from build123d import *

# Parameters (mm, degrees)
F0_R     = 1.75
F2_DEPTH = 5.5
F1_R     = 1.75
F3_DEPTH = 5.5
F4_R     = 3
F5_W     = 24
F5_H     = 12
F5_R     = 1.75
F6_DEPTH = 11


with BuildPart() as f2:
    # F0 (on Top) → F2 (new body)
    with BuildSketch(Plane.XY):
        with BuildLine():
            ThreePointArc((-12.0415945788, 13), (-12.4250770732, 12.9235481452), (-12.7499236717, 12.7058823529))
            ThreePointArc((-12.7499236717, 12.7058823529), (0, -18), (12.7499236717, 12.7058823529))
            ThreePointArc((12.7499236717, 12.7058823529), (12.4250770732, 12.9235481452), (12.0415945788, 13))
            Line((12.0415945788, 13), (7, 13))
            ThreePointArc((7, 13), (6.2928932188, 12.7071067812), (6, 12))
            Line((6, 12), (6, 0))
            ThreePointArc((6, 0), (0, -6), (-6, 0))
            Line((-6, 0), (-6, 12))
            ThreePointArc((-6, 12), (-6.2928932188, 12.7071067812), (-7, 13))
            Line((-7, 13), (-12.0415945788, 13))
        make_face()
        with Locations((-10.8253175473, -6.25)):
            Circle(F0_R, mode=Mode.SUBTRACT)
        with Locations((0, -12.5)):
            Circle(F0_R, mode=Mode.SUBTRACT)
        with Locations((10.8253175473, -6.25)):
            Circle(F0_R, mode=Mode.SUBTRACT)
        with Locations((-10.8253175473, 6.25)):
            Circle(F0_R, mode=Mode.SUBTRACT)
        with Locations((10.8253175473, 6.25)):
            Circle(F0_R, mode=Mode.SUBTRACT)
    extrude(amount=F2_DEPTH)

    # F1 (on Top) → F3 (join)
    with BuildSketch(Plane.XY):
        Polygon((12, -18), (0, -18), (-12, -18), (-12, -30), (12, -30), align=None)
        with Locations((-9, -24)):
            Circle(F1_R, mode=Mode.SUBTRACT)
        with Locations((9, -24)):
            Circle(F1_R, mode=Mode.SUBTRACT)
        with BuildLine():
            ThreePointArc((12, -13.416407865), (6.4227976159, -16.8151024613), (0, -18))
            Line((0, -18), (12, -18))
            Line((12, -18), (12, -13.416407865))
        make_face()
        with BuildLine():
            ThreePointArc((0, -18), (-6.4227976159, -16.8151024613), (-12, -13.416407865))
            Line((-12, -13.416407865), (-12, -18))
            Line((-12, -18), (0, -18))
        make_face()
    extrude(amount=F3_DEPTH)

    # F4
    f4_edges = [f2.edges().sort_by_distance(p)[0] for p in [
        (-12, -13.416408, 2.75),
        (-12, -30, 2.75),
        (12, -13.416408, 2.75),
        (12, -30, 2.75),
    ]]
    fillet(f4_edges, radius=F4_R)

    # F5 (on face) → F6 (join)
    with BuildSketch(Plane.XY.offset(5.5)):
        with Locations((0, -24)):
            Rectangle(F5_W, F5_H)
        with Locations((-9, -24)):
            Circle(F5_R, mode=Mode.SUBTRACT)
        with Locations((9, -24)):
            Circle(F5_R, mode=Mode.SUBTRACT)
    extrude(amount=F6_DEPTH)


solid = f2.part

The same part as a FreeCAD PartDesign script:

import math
import FreeCAD as App
import Part
import Sketcher

V = App.Vector


def edges_at(feature, points):
    """Names of the edges that pass closest to the given points."""
    edges = feature.Shape.Edges
    near = lambda p: min(range(len(edges)), key=lambda i: edges[i].distToShape(Part.Vertex(*p))[0])
    return sorted({f"Edge{near(p) + 1}" for p in points})

doc = App.newDocument("Part")
params = doc.addObject("Spreadsheet::Sheet", "Params")
for row, (alias, value) in enumerate([
    ("sketch1_radius", "1 mm"),
    ("sketch1_radius2", "18 mm"),
    ("sketch1_radius3", "6 mm"),
    ("sketch1_diameter", "3.5 mm"),
    ("sketch1_height", "12 mm"),
    ("pad1_length", "5.5 mm"),
    ("sketch2_radius", "18 mm"),
    ("sketch2_diameter", "3.5 mm"),
    ("sketch2_width", "24 mm"),
    ("pad2_length", "5.5 mm"),
    ("fillet_radius", "3 mm"),
    ("sketch3_diameter", "3.5 mm"),
    ("sketch3_width", "24 mm"),
    ("sketch3_height", "12 mm"),
    ("pad3_length", "11 mm"),
], start=1):
    params.set(f"A{row}", alias)
    params.set(f"B{row}", "=" + value)
    params.setAlias(f"B{row}", alias)

body = doc.addObject("PartDesign::Body", "Body")

# Sketch on XY plane
sketch1 = doc.addObject("Sketcher::SketchObject", "Sketch")
body.addObject(sketch1)
sketch1.AttachmentSupport = (doc.XY_Plane, [""])
sketch1.MapMode = "FlatFace"
sketch1.addGeometry(Part.ArcOfCircle(Part.Circle(V(-12.041595, 12, 0), V(0, 0, 1), 1), math.radians(90), math.radians(135.099128)), False)
sketch1.addGeometry(Part.ArcOfCircle(Part.Circle(V(0, 0, 0), V(0, 0, 1), 18), math.radians(135.099128), math.radians(404.900872)), False)
sketch1.addGeometry(Part.ArcOfCircle(Part.Circle(V(12.041595, 12, 0), V(0, 0, 1), 1), math.radians(44.900872), math.radians(90)), False)
sketch1.addGeometry(Part.LineSegment(V(12.041595, 13, 0), V(7, 13, 0)), False)
sketch1.addGeometry(Part.ArcOfCircle(Part.Circle(V(7, 12, 0), V(0, 0, 1), 1), math.radians(90), math.radians(180)), False)
sketch1.addGeometry(Part.LineSegment(V(6, 12, 0), V(6, 0, 0)), False)
sketch1.addGeometry(Part.ArcOfCircle(Part.Circle(V(0, 0, 0), V(0, 0, 1), 6), math.radians(180), math.radians(360)), False)
sketch1.addGeometry(Part.LineSegment(V(-6, 0, 0), V(-6, 12, 0)), False)
sketch1.addGeometry(Part.ArcOfCircle(Part.Circle(V(-7, 12, 0), V(0, 0, 1), 1), math.radians(0), math.radians(90)), False)
sketch1.addGeometry(Part.LineSegment(V(-7, 13, 0), V(-12.041595, 13, 0)), False)
sketch1.addGeometry(Part.Circle(V(-10.825318, -6.25, 0), V(0, 0, 1), 1.75), False)
sketch1.addGeometry(Part.Circle(V(0, -12.5, 0), V(0, 0, 1), 1.75), False)
sketch1.addGeometry(Part.Circle(V(10.825318, -6.25, 0), V(0, 0, 1), 1.75), False)
sketch1.addGeometry(Part.Circle(V(-10.825318, 6.25, 0), V(0, 0, 1), 1.75), False)
sketch1.addGeometry(Part.Circle(V(10.825318, 6.25, 0), V(0, 0, 1), 1.75), False)
sketch1.addConstraint(Sketcher.Constraint("Tangent", 0, 2, 1, 1))
sketch1.addConstraint(Sketcher.Constraint("Tangent", 1, 2, 2, 1))
sketch1.addConstraint(Sketcher.Constraint("Tangent", 2, 2, 3, 1))
sketch1.addConstraint(Sketcher.Constraint("Tangent", 3, 2, 4, 1))
sketch1.addConstraint(Sketcher.Constraint("Tangent", 4, 2, 5, 1))
sketch1.addConstraint(Sketcher.Constraint("Tangent", 5, 2, 6, 2))
sketch1.addConstraint(Sketcher.Constraint("Tangent", 6, 1, 7, 1))
sketch1.addConstraint(Sketcher.Constraint("Tangent", 7, 2, 8, 1))
sketch1.addConstraint(Sketcher.Constraint("Tangent", 8, 2, 9, 1))
sketch1.addConstraint(Sketcher.Constraint("Tangent", 9, 2, 0, 1))
sketch1.addConstraint(Sketcher.Constraint("Horizontal", 3))
sketch1.addConstraint(Sketcher.Constraint("Vertical", 5))
sketch1.addConstraint(Sketcher.Constraint("Vertical", 7))
sketch1.addConstraint(Sketcher.Constraint("Horizontal", 9))
sketch1.addConstraint(Sketcher.Constraint("Coincident", 1, 3, -1, 1))
sketch1.addConstraint(Sketcher.Constraint("Coincident", 6, 3, -1, 1))
sketch1.addConstraint(Sketcher.Constraint("Equal", 0, 2))
sketch1.addConstraint(Sketcher.Constraint("Equal", 2, 4))
sketch1.addConstraint(Sketcher.Constraint("Equal", 4, 8))
sketch1.addConstraint(Sketcher.Constraint("Equal", 10, 11))
sketch1.addConstraint(Sketcher.Constraint("Equal", 11, 12))
sketch1.addConstraint(Sketcher.Constraint("Equal", 12, 13))
sketch1.addConstraint(Sketcher.Constraint("Equal", 13, 14))
sketch1.addConstraint(Sketcher.Constraint("Symmetric", 12, 3, 13, 3, -1, 1))
sketch1.addConstraint(Sketcher.Constraint("Symmetric", 10, 3, 14, 3, -1, 1))
sketch1.addConstraint(Sketcher.Constraint("Symmetric", 10, 3, 12, 3, -2))
sketch1.addConstraint(Sketcher.Constraint("PointOnObject", 11, 3, -2))
sketch1.addConstraint(Sketcher.Constraint("Horizontal", 0, 3, 2, 3))
sketch1.addConstraint(Sketcher.Constraint("Radius", 0, 1.0))
sketch1.addConstraint(Sketcher.Constraint("Radius", 1, 18.0))
sketch1.addConstraint(Sketcher.Constraint("Radius", 6, 6.0))
sketch1.addConstraint(Sketcher.Constraint("Diameter", 10, 3.5))
sketch1.addConstraint(Sketcher.Constraint("DistanceY", 5, 2, 5, 1, 12.0))
sketch1.addConstraint(Sketcher.Constraint("DistanceY", 11, 3, -1, 1, 12.5))
sketch1.addConstraint(Sketcher.Constraint("DistanceY", 10, 3, 13, 3, 12.5))
sketch1.addConstraint(Sketcher.Constraint("DistanceX", 10, 3, -1, 1, 10.825318))
sketch1.setExpression("Constraints[28]", "Params.sketch1_radius")
sketch1.setExpression("Constraints[29]", "Params.sketch1_radius2")
sketch1.setExpression("Constraints[30]", "Params.sketch1_radius3")
sketch1.setExpression("Constraints[31]", "Params.sketch1_diameter")
sketch1.setExpression("Constraints[32]", "Params.sketch1_height")
pad1 = doc.addObject("PartDesign::Pad", "Pad")
body.addObject(pad1)
pad1.Profile = sketch1
pad1.setExpression("Length", "Params.pad1_length")

# Sketch on XY plane
sketch2 = doc.addObject("Sketcher::SketchObject", "Sketch001")
body.addObject(sketch2)
sketch2.AttachmentSupport = (doc.XY_Plane, [""])
sketch2.MapMode = "FlatFace"
sketch2.addGeometry(Part.LineSegment(V(-12, -30, 0), V(12, -30, 0)), False)
sketch2.addGeometry(Part.LineSegment(V(12, -30, 0), V(12, -13.416408, 0)), False)
sketch2.addGeometry(Part.ArcOfCircle(Part.Circle(V(0, 0, 0), V(0, 0, 1), 18), math.radians(-90), math.radians(-48.189685)), False)
sketch2.addGeometry(Part.ArcOfCircle(Part.Circle(V(0, 0, 0), V(0, 0, 1), 18), math.radians(-131.810315), math.radians(-90)), False)
sketch2.addGeometry(Part.LineSegment(V(-12, -13.416408, 0), V(-12, -30, 0)), False)
sketch2.addGeometry(Part.Circle(V(-9, -24, 0), V(0, 0, 1), 1.75), False)
sketch2.addGeometry(Part.Circle(V(9, -24, 0), V(0, 0, 1), 1.75), False)
sketch2.addConstraint(Sketcher.Constraint("Coincident", 0, 2, 1, 1))
sketch2.addConstraint(Sketcher.Constraint("Coincident", 1, 2, 2, 2))
sketch2.addConstraint(Sketcher.Constraint("Tangent", 2, 1, 3, 2))
sketch2.addConstraint(Sketcher.Constraint("Coincident", 3, 1, 4, 1))
sketch2.addConstraint(Sketcher.Constraint("Coincident", 4, 2, 0, 1))
sketch2.addConstraint(Sketcher.Constraint("Horizontal", 0))
sketch2.addConstraint(Sketcher.Constraint("Vertical", 1))
sketch2.addConstraint(Sketcher.Constraint("Vertical", 4))
sketch2.addConstraint(Sketcher.Constraint("Coincident", 2, 3, -1, 1))
sketch2.addConstraint(Sketcher.Constraint("Equal", 2, 3))
sketch2.addConstraint(Sketcher.Constraint("Equal", 5, 6))
sketch2.addConstraint(Sketcher.Constraint("Symmetric", 5, 3, 6, 3, -2))
sketch2.addConstraint(Sketcher.Constraint("PointOnObject", 2, 1, -2))
sketch2.addConstraint(Sketcher.Constraint("Horizontal", 1, 2, 3, 1))
sketch2.addConstraint(Sketcher.Constraint("Radius", 2, 18.0))
sketch2.addConstraint(Sketcher.Constraint("Diameter", 5, 3.5))
sketch2.addConstraint(Sketcher.Constraint("DistanceX", 0, 1, 0, 2, 24.0))
sketch2.addConstraint(Sketcher.Constraint("DistanceX", 5, 3, -1, 1, 9.0))
sketch2.addConstraint(Sketcher.Constraint("DistanceY", 5, 3, -1, 1, 24.0))
sketch2.addConstraint(Sketcher.Constraint("DistanceY", 0, 2, -1, 1, 30.0))
sketch2.setExpression("Constraints[14]", "Params.sketch2_radius")
sketch2.setExpression("Constraints[15]", "Params.sketch2_diameter")
sketch2.setExpression("Constraints[16]", "Params.sketch2_width")
pad2 = doc.addObject("PartDesign::Pad", "Pad001")
body.addObject(pad2)
pad2.Profile = sketch2
pad2.setExpression("Length", "Params.pad2_length")
doc.recompute()

fillet = doc.addObject("PartDesign::Fillet", "Fillet")
body.addObject(fillet)
fillet.Base = (pad2, edges_at(pad2, [
    (-12, -13.416, 2.75),
    (-12, -30, 2.75),
    (12, -13.416, 2.75),
    (12, -30, 2.75),
]))
fillet.setExpression("Radius", "Params.fillet_radius")

# Sketch on XY plane
sketch3 = doc.addObject("Sketcher::SketchObject", "Sketch002")
body.addObject(sketch3)
sketch3.AttachmentSupport = (doc.XY_Plane, [""])
sketch3.MapMode = "FlatFace"
sketch3.AttachmentOffset = App.Placement(V(0, 0, 5.5), App.Rotation())
sketch3.addGeometry(Part.LineSegment(V(-12, -18, 0), V(-12, -30, 0)), False)
sketch3.addGeometry(Part.LineSegment(V(-12, -30, 0), V(12, -30, 0)), False)
sketch3.addGeometry(Part.LineSegment(V(12, -30, 0), V(12, -18, 0)), False)
sketch3.addGeometry(Part.LineSegment(V(12, -18, 0), V(-12, -18, 0)), False)
sketch3.addGeometry(Part.Circle(V(-9, -24, 0), V(0, 0, 1), 1.75), False)
sketch3.addGeometry(Part.Circle(V(9, -24, 0), V(0, 0, 1), 1.75), False)
sketch3.addConstraint(Sketcher.Constraint("Coincident", 0, 2, 1, 1))
sketch3.addConstraint(Sketcher.Constraint("Coincident", 1, 2, 2, 1))
sketch3.addConstraint(Sketcher.Constraint("Coincident", 2, 2, 3, 1))
sketch3.addConstraint(Sketcher.Constraint("Coincident", 3, 2, 0, 1))
sketch3.addConstraint(Sketcher.Constraint("Vertical", 0))
sketch3.addConstraint(Sketcher.Constraint("Horizontal", 1))
sketch3.addConstraint(Sketcher.Constraint("Vertical", 2))
sketch3.addConstraint(Sketcher.Constraint("Horizontal", 3))
sketch3.addConstraint(Sketcher.Constraint("Equal", 4, 5))
sketch3.addConstraint(Sketcher.Constraint("Symmetric", 4, 3, 5, 3, -2))
sketch3.addConstraint(Sketcher.Constraint("Diameter", 4, 3.5))
sketch3.addConstraint(Sketcher.Constraint("DistanceX", 1, 1, 1, 2, 24.0))
sketch3.addConstraint(Sketcher.Constraint("DistanceY", 0, 2, 0, 1, 12.0))
sketch3.addConstraint(Sketcher.Constraint("DistanceX", 4, 3, -1, 1, 9.0))
sketch3.addConstraint(Sketcher.Constraint("DistanceY", 4, 3, -1, 1, 24.0))
sketch3.addConstraint(Sketcher.Constraint("DistanceX", 0, 2, -1, 1, 12.0))
sketch3.addConstraint(Sketcher.Constraint("DistanceY", 0, 2, -1, 1, 30.0))
sketch3.setExpression("Constraints[10]", "Params.sketch3_diameter")
sketch3.setExpression("Constraints[11]", "Params.sketch3_width")
sketch3.setExpression("Constraints[12]", "Params.sketch3_height")
pad3 = doc.addObject("PartDesign::Pad", "Pad002")
body.addObject(pad3)
pad3.Profile = sketch3
pad3.setExpression("Length", "Params.pad3_length")

doc.recompute()
